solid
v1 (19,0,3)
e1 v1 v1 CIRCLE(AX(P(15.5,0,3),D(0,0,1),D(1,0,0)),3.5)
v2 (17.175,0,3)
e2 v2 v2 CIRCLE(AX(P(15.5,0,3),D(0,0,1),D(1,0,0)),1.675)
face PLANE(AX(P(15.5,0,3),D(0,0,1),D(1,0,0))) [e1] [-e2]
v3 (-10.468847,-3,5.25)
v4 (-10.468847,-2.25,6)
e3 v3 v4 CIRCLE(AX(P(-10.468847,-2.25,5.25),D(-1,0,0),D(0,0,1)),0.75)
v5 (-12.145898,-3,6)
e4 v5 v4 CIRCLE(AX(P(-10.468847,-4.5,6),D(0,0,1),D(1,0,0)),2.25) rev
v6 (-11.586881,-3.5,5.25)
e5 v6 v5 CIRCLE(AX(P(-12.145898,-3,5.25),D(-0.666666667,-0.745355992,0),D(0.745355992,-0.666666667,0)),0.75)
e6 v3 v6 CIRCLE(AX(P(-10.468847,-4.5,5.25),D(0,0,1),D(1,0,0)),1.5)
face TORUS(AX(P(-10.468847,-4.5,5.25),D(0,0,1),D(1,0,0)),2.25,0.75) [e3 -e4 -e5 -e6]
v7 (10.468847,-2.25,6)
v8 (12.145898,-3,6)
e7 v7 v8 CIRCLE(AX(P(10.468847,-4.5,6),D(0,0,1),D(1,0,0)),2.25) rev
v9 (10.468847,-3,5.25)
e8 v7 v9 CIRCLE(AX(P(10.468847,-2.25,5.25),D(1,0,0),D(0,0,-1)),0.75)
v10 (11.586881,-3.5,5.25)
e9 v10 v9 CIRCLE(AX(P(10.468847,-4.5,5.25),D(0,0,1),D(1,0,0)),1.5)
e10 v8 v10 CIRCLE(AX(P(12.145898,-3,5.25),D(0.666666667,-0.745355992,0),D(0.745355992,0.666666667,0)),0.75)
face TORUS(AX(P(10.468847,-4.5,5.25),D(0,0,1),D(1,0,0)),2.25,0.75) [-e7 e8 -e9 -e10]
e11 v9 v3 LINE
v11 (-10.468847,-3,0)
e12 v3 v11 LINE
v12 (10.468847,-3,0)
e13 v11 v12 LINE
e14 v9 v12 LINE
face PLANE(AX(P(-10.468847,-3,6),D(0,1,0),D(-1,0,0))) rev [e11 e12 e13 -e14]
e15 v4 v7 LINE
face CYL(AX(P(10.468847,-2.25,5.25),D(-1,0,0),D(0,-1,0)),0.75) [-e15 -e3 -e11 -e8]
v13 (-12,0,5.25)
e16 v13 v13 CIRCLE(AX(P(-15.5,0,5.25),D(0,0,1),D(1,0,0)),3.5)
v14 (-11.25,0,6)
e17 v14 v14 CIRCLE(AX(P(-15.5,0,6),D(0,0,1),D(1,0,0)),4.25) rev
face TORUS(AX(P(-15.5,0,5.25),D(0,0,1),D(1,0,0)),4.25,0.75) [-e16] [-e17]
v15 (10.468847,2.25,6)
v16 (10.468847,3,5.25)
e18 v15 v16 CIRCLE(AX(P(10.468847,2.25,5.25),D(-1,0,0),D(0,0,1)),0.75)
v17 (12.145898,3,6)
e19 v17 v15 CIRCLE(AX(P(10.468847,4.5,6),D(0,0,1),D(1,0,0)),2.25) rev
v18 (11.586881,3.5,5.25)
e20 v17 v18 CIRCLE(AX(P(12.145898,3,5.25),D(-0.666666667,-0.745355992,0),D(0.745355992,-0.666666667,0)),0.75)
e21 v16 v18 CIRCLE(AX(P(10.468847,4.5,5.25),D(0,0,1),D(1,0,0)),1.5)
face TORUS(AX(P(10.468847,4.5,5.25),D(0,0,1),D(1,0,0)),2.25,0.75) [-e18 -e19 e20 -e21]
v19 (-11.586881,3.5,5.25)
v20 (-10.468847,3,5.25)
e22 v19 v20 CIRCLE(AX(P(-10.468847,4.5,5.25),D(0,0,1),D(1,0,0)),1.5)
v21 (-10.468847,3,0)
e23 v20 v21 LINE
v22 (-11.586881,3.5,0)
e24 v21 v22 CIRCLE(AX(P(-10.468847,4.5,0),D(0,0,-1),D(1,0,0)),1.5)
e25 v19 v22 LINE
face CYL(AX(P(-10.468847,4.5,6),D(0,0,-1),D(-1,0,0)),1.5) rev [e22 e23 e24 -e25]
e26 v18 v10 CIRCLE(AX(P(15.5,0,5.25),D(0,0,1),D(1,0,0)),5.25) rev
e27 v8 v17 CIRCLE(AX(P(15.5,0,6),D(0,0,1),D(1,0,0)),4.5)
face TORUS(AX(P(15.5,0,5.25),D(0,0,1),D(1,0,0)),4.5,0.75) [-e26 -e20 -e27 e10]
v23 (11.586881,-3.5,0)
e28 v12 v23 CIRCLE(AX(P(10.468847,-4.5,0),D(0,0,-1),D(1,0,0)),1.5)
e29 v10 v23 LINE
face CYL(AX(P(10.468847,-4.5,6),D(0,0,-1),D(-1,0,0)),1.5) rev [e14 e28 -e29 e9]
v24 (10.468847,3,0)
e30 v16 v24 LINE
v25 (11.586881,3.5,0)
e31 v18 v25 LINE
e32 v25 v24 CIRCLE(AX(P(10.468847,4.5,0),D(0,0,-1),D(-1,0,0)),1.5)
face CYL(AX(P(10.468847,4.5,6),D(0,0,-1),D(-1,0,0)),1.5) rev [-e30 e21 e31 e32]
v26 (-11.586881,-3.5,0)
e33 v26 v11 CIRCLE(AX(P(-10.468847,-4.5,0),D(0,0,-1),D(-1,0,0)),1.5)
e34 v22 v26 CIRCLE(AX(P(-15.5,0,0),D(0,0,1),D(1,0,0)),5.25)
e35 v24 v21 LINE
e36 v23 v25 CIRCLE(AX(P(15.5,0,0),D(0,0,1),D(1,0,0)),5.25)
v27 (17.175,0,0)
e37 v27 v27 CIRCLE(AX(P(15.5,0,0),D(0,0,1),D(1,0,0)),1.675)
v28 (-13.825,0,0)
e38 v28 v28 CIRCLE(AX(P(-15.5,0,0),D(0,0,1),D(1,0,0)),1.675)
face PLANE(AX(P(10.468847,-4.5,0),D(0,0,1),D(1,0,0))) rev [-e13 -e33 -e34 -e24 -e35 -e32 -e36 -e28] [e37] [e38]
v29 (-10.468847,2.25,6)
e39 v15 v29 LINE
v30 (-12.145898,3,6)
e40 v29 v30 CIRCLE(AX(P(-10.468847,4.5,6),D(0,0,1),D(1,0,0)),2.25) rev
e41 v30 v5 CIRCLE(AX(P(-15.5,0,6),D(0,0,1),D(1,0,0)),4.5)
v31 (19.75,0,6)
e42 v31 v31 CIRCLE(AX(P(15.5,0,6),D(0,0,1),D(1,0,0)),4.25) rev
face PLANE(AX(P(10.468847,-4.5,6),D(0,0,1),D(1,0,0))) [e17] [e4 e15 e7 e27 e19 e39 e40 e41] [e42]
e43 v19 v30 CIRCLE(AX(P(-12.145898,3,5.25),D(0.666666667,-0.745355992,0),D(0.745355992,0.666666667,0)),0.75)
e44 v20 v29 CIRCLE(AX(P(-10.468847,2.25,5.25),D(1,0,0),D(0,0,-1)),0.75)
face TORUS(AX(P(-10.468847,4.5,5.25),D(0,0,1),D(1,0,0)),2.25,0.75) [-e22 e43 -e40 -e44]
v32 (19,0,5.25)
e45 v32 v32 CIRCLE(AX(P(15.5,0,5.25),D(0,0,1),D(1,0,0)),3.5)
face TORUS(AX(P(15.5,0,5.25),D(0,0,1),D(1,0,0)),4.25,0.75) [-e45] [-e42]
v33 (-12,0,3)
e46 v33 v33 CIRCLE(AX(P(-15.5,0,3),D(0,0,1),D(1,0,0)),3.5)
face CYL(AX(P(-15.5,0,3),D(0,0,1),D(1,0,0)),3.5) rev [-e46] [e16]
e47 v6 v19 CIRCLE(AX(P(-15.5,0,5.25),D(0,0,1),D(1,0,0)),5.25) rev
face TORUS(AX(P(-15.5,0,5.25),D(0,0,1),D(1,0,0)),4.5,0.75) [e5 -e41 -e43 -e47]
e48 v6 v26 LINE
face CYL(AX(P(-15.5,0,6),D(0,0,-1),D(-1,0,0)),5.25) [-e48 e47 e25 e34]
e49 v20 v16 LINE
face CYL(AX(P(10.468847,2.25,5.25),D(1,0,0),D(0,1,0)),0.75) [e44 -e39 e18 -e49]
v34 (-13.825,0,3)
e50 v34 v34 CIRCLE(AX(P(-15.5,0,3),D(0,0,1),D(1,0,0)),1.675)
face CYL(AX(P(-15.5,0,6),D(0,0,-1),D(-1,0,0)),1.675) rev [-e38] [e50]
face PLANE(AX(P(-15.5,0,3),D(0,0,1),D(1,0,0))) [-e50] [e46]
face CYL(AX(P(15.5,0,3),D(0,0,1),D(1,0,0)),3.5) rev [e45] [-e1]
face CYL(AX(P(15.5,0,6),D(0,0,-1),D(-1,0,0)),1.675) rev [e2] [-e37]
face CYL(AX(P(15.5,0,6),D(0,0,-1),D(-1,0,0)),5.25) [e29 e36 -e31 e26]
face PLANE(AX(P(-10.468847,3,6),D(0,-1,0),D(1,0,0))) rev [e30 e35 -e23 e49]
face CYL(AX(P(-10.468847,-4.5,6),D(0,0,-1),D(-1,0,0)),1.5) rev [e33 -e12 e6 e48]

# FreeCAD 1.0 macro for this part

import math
import FreeCAD as App
import Part
import Sketcher

V = App.Vector
Q = App.Units.Quantity


def edges_at(feature, points):
    """Names of the edges that pass closest to the given points."""
    edges = feature.Shape.Edges
    near = lambda p: min(range(len(edges)), key=lambda i: edges[i].distToShape(Part.Vertex(*p))[0])
    return sorted({f"Edge{near(p) + 1}" for p in points})

doc = App.newDocument("Part")
body = doc.addObject("PartDesign::Body", "Body")

sketch1 = body.newObject("Sketcher::SketchObject", "Sketch")
sketch1.AttachmentSupport = (doc.getObject("XY_Plane"), [""])
sketch1.MapMode = "FlatFace"
sketch1.addGeometry([
    Part.LineSegment(V(10.5, 3, 0), V(-10.5, 3, 0)),
    Part.ArcOfCircle(Part.Circle(V(-10.5, 4.5, 0), V(0, 0, 1), 1.5), math.radians(-138), math.radians(-90)),
    Part.ArcOfCircle(Part.Circle(V(-15.5, 0, 0), V(0, 0, 1), 5.2), math.radians(42), math.radians(318)),
    Part.ArcOfCircle(Part.Circle(V(-10.5, -4.5, 0), V(0, 0, 1), 1.5), math.radians(90), math.radians(138)),
    Part.LineSegment(V(-10.5, -3, 0), V(10.5, -3, 0)),
    Part.ArcOfCircle(Part.Circle(V(10.5, -4.5, 0), V(0, 0, 1), 1.5), math.radians(42), math.radians(90)),
    Part.ArcOfCircle(Part.Circle(V(15.5, 0, 0), V(0, 0, 1), 5.2), math.radians(-138), math.radians(138)),
    Part.ArcOfCircle(Part.Circle(V(10.5, 4.5, 0), V(0, 0, 1), 1.5), math.radians(-90), math.radians(-42)),
    Part.Circle(V(15.5, 0, 0), V(0, 0, 1), 1.7),
    Part.Circle(V(-15.5, 0, 0), V(0, 0, 1), 1.7),
], False)
sketch1.addConstraint([
    Sketcher.Constraint("Tangent", 0, 2, 1, 2),
    Sketcher.Constraint("Tangent", 1, 1, 2, 1),
    Sketcher.Constraint("Tangent", 2, 2, 3, 2),
    Sketcher.Constraint("Tangent", 3, 1, 4, 1),
    Sketcher.Constraint("Tangent", 4, 2, 5, 2),
    Sketcher.Constraint("Tangent", 5, 1, 6, 1),
    Sketcher.Constraint("Tangent", 6, 2, 7, 2),
    Sketcher.Constraint("Tangent", 7, 1, 0, 1),
    Sketcher.Constraint("Horizontal", 0),
    Sketcher.Constraint("Horizontal", 4),
    Sketcher.Constraint("Coincident", 8, 3, 6, 3),
    Sketcher.Constraint("Coincident", 9, 3, 2, 3),
    Sketcher.Constraint("Equal", 1, 3),
    Sketcher.Constraint("Equal", 3, 5),
    Sketcher.Constraint("Equal", 2, 6),
    Sketcher.Constraint("Equal", 5, 7),
    Sketcher.Constraint("Equal", 8, 9),
    Sketcher.Constraint("Symmetric", 1, 3, 5, 3, -1, 1),
    Sketcher.Constraint("Symmetric", 2, 3, 6, 3, -2),
    Sketcher.Constraint("Radius", 1, Q("1.5 mm")),
    Sketcher.Constraint("Diameter", 8, Q("3.35 mm")),
    Sketcher.Constraint("Radius", 2, Q("5.25 mm")),
    Sketcher.Constraint("DistanceY", -1, 1, 0, 2, Q("3 mm")),
    Sketcher.Constraint("DistanceX", 2, 3, 6, 3, Q("31 mm")),
])
pad1 = body.newObject("PartDesign::Pad", "Pad")
pad1.Profile = sketch1
pad1.Length = 6

sketch2 = body.newObject("Sketcher::SketchObject", "Sketch001")
sketch2.AttachmentSupport = (doc.getObject("XY_Plane"), [""])
sketch2.MapMode = "FlatFace"
sketch2.AttachmentOffset = App.Placement(V(0, 0, 6), App.Rotation())
sketch2.addGeometry([
    Part.Circle(V(-15.5, 0, 0), V(0, 0, 1), 3.5),
    Part.Circle(V(15.5, 0, 0), V(0, 0, 1), 3.5),
], False)
sketch2.addConstraint([
    Sketcher.Constraint("Equal", 0, 1),
    Sketcher.Constraint("Symmetric", 0, 3, 1, 3, -1, 1),
    Sketcher.Constraint("PointOnObject", 0, 3, -1),
    Sketcher.Constraint("Diameter", 0, Q("7 mm")),
    Sketcher.Constraint("DistanceX", 0, 3, 1, 3, Q("31 mm")),
])
pocket1 = body.newObject("PartDesign::Pocket", "Pocket")
pocket1.Profile = sketch2
pocket1.Length = 3
doc.recompute()

fillet = body.newObject("PartDesign::Fillet", "Fillet")
fillet.Base = (pocket1, edges_at(pocket1, [
    (11.081, 3.131, 6),
    (0, 3, 6),
    (-11.081, 3.131, 6),
    (-20.75, 0, 6),
    (-11.081, -3.131, 6),
    (0, -3, 6),
    (-19, 0, 6),
    (12, 0, 6),
    (11.081, -3.131, 6),
    (20.75, 0, 6),
]))
fillet.Radius = 0.75

doc.recompute()
